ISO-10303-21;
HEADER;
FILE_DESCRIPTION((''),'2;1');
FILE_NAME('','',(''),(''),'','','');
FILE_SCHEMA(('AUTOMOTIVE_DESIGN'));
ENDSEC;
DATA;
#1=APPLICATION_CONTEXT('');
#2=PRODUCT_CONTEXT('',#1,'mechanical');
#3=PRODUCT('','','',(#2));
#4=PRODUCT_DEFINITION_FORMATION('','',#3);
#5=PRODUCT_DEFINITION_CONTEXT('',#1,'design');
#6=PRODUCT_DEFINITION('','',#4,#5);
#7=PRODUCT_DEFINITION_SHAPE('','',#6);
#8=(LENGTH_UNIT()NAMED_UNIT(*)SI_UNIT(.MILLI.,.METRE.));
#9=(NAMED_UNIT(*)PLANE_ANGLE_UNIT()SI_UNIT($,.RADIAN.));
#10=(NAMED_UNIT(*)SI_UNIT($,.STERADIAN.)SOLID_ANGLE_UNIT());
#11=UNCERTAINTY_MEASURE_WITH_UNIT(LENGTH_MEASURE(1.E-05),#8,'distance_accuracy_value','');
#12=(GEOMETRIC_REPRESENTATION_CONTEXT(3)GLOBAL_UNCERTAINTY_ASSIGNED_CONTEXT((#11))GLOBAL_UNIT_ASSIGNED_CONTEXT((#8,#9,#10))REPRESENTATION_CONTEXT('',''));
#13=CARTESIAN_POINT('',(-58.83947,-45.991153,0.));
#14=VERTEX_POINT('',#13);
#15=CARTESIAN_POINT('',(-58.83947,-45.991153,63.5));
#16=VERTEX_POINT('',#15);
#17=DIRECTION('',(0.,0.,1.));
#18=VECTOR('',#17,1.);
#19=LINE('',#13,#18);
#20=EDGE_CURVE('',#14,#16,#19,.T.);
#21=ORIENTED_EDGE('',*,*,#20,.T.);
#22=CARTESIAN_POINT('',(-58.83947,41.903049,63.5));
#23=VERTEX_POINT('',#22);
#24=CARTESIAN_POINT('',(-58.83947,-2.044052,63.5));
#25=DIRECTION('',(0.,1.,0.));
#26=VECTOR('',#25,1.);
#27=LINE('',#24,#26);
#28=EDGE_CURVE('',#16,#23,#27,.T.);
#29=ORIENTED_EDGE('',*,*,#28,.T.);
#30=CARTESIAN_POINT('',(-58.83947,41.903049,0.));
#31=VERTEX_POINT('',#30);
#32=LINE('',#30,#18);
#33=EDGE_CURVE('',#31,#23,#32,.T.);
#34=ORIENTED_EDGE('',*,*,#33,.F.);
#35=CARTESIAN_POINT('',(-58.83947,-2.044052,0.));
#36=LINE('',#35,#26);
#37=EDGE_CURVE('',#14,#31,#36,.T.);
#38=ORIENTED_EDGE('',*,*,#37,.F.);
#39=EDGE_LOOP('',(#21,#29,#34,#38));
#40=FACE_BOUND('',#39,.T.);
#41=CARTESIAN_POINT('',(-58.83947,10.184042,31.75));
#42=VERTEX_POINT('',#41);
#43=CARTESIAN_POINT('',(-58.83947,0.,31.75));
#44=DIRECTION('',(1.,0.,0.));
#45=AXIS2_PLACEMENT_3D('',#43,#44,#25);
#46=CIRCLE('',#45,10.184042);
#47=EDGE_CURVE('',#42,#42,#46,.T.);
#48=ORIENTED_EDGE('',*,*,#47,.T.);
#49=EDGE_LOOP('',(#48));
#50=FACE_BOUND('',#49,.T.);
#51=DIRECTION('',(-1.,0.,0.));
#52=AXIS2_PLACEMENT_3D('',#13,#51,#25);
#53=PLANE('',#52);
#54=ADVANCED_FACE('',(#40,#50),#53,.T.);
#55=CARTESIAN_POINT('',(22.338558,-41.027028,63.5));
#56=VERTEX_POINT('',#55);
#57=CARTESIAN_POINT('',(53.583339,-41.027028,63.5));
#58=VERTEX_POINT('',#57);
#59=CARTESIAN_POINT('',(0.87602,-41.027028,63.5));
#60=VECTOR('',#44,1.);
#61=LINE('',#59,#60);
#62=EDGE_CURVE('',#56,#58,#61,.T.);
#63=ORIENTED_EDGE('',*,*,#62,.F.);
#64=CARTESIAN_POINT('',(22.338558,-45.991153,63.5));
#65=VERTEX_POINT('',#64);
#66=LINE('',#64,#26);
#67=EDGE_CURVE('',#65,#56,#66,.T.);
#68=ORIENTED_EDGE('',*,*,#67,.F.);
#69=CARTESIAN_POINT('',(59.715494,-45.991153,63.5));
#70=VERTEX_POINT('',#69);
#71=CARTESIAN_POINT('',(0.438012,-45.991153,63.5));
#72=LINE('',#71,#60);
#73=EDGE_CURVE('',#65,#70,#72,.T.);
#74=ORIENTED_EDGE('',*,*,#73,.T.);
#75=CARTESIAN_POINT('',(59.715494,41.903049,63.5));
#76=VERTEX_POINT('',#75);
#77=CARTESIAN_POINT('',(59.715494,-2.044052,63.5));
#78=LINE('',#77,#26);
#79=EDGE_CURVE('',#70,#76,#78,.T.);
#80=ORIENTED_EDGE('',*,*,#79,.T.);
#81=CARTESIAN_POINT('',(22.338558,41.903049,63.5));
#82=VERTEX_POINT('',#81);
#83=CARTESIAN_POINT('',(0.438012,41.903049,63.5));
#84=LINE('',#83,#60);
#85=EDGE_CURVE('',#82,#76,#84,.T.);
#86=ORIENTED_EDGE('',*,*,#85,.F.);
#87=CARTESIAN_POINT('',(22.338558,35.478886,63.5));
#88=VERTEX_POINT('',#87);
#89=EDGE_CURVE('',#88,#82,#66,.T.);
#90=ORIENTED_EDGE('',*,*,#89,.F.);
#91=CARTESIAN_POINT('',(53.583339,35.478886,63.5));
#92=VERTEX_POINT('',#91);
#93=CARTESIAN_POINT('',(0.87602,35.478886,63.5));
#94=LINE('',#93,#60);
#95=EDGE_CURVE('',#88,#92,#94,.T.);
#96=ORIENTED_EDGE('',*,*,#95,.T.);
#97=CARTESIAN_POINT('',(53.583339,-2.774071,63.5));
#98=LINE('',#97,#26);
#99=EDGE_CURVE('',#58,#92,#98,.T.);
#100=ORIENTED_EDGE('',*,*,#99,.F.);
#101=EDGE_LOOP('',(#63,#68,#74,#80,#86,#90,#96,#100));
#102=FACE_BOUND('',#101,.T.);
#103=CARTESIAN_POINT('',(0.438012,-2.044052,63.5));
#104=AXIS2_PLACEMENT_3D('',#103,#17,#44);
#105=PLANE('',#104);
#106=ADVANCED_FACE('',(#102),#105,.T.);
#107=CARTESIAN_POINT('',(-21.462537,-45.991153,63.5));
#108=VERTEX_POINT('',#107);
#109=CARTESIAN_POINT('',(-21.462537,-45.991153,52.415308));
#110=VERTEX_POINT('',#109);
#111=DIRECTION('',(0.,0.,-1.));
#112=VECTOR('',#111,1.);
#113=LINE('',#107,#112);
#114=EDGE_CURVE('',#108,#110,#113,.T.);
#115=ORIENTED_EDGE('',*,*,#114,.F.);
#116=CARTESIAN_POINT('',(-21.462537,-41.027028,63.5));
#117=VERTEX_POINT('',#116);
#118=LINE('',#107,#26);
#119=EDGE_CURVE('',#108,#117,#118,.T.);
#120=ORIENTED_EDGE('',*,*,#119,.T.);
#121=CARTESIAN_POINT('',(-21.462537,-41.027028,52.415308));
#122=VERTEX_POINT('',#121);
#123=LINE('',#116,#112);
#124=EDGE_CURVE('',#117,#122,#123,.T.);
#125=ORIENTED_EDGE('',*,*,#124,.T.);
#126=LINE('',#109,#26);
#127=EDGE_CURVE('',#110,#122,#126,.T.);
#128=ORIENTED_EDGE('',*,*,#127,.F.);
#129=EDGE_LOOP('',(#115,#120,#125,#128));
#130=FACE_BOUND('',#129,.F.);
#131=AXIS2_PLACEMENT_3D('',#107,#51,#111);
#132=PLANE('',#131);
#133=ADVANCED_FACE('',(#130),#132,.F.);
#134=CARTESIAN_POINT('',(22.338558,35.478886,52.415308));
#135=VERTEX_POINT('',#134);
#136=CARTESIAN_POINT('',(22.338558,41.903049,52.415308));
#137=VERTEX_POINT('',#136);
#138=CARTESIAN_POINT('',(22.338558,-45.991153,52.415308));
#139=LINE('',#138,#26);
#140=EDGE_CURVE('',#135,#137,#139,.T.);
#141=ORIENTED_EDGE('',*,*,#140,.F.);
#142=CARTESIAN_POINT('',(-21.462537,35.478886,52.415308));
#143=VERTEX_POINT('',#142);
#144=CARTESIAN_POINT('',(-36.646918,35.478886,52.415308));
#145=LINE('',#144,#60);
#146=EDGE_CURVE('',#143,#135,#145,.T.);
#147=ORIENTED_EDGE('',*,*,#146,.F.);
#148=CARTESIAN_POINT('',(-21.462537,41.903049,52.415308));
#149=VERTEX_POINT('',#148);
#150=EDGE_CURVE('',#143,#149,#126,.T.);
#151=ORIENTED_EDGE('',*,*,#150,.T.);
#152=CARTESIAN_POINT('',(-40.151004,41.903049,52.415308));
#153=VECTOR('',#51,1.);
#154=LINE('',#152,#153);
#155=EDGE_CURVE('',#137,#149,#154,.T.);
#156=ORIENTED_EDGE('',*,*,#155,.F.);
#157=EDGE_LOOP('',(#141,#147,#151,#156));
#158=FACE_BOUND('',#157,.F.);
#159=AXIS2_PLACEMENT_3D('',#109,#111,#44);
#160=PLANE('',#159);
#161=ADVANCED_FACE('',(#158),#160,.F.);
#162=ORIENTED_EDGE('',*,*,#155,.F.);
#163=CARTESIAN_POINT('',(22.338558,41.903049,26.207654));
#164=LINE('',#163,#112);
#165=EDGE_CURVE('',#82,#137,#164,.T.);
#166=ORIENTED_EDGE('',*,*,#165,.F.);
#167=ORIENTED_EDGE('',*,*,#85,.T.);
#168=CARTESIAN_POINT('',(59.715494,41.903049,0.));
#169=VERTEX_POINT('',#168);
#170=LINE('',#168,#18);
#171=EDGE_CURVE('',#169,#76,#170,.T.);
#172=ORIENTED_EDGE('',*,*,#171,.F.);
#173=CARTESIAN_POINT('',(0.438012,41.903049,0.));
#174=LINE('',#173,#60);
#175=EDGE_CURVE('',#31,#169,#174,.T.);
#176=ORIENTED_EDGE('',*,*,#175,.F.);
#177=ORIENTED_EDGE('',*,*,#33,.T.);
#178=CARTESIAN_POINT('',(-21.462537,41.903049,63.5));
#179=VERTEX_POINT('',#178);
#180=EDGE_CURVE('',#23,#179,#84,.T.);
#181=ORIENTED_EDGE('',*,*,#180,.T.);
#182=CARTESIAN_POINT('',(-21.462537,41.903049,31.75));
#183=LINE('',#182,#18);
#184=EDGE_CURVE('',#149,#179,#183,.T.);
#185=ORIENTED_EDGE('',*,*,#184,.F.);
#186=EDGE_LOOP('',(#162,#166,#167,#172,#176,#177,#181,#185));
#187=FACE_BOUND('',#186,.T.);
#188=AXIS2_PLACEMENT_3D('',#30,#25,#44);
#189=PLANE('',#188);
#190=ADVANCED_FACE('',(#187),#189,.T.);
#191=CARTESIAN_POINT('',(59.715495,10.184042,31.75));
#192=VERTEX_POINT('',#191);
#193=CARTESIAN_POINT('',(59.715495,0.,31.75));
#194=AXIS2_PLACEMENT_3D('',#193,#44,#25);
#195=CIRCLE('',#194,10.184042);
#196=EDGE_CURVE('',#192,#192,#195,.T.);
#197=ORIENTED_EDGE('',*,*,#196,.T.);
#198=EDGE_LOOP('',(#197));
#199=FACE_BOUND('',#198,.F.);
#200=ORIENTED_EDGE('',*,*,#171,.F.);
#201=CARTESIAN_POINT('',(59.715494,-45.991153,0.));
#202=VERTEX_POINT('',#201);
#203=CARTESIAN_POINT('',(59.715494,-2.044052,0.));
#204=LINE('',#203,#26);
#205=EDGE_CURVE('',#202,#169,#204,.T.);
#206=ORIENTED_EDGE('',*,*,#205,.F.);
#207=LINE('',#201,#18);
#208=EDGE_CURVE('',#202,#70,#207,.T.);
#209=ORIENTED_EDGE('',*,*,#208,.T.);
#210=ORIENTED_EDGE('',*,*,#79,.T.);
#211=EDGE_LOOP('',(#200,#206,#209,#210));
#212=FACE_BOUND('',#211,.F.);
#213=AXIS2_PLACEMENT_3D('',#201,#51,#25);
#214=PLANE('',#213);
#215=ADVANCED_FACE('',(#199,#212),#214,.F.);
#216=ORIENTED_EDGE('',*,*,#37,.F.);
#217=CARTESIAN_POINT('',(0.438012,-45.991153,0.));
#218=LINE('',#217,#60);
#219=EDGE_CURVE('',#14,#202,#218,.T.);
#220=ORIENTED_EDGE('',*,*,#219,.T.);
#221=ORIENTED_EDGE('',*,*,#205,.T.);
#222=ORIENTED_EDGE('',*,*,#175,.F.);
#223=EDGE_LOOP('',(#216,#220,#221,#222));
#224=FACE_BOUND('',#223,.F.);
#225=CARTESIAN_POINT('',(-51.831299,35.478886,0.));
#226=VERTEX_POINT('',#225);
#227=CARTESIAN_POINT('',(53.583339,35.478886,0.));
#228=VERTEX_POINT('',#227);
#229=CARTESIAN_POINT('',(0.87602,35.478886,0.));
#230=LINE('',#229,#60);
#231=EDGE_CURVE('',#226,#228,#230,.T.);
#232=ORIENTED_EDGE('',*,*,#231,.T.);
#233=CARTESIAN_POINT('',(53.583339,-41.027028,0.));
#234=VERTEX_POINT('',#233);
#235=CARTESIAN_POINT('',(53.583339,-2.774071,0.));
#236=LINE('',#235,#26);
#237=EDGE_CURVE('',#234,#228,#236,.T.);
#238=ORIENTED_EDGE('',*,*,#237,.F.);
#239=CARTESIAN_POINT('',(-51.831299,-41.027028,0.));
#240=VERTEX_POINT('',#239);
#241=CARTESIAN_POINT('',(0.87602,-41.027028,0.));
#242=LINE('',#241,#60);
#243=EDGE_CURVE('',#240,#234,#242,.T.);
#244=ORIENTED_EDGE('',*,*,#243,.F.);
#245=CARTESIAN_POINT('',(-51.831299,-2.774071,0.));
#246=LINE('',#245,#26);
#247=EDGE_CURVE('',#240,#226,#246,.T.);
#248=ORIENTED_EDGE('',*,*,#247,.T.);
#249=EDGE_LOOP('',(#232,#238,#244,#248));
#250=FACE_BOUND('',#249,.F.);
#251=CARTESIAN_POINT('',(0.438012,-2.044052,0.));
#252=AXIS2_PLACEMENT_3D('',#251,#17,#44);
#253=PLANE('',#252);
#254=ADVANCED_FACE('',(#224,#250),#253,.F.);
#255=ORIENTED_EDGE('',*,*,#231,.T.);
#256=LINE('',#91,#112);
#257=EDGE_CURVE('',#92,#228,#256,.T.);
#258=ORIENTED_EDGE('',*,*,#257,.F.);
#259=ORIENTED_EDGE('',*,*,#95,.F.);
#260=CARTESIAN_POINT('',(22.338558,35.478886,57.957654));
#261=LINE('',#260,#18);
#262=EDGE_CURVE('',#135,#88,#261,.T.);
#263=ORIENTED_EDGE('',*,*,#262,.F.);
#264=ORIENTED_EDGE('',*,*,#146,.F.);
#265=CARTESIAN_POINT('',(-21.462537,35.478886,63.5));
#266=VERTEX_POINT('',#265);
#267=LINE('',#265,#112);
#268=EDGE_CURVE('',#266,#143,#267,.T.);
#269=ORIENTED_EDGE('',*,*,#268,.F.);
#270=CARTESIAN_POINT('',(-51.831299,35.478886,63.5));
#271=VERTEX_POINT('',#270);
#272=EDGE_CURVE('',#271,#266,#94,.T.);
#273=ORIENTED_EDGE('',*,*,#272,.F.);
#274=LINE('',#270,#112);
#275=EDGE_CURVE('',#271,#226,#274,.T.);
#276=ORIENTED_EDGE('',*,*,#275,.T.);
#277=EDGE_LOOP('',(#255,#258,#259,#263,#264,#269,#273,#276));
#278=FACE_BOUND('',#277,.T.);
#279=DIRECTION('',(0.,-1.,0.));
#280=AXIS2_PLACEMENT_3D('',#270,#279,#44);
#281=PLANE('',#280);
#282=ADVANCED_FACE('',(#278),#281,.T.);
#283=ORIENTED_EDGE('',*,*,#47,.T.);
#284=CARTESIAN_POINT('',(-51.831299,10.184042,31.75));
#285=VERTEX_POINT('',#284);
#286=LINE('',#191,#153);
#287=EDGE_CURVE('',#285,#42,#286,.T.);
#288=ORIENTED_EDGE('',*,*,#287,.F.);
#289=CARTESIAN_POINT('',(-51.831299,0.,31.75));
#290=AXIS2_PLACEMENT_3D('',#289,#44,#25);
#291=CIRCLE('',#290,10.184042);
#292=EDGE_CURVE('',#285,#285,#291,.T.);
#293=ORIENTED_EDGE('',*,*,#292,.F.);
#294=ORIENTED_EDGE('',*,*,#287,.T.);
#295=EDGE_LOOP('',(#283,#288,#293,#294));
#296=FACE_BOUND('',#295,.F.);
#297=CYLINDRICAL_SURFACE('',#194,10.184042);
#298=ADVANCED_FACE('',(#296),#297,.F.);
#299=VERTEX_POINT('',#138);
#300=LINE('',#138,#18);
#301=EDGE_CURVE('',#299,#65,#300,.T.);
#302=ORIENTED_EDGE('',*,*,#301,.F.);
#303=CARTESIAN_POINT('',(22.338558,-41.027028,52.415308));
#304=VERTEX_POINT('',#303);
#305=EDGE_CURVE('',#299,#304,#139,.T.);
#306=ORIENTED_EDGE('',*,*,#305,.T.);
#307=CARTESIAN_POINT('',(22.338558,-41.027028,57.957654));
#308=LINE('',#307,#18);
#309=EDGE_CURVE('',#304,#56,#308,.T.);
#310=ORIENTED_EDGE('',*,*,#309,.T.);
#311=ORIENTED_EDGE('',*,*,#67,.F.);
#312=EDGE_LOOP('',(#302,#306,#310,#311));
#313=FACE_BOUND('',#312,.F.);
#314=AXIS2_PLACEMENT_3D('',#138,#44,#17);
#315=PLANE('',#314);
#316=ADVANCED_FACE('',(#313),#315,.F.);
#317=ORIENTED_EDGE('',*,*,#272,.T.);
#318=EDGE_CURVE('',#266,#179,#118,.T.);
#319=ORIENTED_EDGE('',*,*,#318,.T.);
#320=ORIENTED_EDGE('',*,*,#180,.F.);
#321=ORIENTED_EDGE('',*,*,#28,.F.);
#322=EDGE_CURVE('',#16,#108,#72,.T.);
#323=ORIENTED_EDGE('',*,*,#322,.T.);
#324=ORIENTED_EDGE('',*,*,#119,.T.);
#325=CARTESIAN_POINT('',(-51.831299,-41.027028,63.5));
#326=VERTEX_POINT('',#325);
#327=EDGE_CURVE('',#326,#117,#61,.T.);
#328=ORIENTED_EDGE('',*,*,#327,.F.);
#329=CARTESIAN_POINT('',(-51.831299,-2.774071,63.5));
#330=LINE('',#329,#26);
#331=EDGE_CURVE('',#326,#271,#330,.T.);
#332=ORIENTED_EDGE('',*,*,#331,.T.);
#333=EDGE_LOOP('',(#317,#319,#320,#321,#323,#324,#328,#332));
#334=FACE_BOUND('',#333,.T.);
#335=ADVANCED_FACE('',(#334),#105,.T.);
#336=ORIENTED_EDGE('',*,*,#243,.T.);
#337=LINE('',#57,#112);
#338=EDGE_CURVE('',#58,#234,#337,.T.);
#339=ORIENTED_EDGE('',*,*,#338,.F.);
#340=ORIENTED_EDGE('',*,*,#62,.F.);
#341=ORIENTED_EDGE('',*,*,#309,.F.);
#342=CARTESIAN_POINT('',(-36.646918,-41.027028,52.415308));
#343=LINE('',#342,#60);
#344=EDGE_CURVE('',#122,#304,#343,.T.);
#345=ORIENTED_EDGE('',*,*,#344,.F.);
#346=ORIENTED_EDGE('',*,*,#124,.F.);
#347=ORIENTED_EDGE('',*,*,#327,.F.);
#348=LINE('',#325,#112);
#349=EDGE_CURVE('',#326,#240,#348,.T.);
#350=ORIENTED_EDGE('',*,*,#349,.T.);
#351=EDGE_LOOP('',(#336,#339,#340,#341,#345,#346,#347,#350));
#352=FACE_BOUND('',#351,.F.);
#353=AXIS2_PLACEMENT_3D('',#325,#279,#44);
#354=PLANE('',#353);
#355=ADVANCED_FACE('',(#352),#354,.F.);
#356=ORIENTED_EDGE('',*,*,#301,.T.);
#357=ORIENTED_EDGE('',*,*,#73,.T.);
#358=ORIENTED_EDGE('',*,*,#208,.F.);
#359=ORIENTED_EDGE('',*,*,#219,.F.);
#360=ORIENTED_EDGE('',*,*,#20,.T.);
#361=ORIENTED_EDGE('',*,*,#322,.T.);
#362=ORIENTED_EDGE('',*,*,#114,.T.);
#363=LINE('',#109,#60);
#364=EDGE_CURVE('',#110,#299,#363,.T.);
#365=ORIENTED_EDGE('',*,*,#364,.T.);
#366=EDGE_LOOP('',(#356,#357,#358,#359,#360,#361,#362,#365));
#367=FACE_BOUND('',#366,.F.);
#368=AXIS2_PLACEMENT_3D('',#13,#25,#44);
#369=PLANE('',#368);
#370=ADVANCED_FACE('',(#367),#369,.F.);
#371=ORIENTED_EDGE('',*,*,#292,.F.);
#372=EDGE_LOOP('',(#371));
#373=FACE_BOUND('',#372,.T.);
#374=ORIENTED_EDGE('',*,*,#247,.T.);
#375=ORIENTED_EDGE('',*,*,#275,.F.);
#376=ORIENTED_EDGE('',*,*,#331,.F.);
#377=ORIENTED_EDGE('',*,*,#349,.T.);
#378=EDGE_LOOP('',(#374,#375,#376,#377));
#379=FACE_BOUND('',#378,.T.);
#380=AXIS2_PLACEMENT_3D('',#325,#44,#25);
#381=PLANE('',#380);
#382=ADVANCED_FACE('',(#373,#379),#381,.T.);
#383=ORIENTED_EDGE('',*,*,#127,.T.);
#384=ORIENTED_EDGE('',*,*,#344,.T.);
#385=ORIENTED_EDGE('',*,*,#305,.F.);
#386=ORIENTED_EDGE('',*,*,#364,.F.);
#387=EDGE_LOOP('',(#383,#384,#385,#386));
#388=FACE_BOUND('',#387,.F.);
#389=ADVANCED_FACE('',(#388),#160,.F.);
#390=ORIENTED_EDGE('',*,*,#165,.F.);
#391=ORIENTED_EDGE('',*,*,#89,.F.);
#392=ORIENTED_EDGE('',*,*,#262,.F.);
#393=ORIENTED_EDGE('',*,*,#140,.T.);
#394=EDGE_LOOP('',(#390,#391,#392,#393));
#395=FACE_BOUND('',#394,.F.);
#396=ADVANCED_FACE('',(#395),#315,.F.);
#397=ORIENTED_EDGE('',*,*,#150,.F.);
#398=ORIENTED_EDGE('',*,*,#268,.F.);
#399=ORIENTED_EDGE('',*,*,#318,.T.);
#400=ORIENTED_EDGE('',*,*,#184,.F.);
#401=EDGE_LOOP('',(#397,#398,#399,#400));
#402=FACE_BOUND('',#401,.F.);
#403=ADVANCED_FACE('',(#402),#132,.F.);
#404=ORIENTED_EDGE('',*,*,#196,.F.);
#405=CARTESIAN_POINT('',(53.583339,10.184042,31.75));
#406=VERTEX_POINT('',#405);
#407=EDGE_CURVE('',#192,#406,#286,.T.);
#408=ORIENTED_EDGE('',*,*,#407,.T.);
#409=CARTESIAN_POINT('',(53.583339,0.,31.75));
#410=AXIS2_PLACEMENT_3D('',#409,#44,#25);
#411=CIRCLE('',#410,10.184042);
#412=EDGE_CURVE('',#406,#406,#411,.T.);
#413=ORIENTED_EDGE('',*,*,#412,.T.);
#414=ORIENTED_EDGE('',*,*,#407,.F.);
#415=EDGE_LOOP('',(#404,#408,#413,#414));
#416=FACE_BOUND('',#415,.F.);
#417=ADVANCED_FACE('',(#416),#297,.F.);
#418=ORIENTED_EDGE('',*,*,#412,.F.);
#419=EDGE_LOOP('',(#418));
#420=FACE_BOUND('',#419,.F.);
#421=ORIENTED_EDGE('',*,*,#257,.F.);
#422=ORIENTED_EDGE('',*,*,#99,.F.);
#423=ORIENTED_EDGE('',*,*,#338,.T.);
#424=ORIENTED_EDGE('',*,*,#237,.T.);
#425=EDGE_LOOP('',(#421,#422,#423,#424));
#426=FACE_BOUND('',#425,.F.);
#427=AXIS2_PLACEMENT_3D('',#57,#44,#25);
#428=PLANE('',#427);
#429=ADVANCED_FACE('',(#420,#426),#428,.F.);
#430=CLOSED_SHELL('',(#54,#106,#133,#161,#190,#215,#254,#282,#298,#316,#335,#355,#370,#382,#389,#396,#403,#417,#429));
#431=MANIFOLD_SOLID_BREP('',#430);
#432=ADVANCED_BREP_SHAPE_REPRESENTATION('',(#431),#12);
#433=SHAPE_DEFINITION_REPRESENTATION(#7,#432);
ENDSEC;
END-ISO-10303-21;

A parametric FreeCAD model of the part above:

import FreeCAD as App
import Part
import Sketcher
from FreeCAD import Vector
Q = App.Units.Quantity

doc = App.newDocument("Part")
body = doc.addObject("PartDesign::Body", "Body")

sketch1 = body.newObject("Sketcher::SketchObject", "Sketch")
sketch1.AttachmentSupport = (doc.getObject("XY_Plane"), [""])
sketch1.MapMode = "FlatFace"
sketch1.addGeometry([
    Part.LineSegment(Vector(-59, 42, 0), Vector(-59, -46, 0)),
    Part.LineSegment(Vector(-59, -46, 0), Vector(60, -46, 0)),
    Part.LineSegment(Vector(60, -46, 0), Vector(60, 42, 0)),
    Part.LineSegment(Vector(60, 42, 0), Vector(-59, 42, 0)),
], False)
sketch1.addConstraint([
    Sketcher.Constraint("Coincident", 0, 2, 1, 1),
    Sketcher.Constraint("Coincident", 1, 2, 2, 1),
    Sketcher.Constraint("Coincident", 2, 2, 3, 1),
    Sketcher.Constraint("Coincident", 3, 2, 0, 1),
    Sketcher.Constraint("Vertical", 0),
    Sketcher.Constraint("Horizontal", 1),
    Sketcher.Constraint("Vertical", 2),
    Sketcher.Constraint("Horizontal", 3),
    Sketcher.Constraint("DistanceX", 1, 1, 1, 2, Q("118.554965 mm")),
    Sketcher.Constraint("DistanceY", 0, 2, 0, 1, Q("87.894202 mm")),
    Sketcher.Constraint("DistanceX", 0, 2, -1, 1, Q("58.83947 mm")),
    Sketcher.Constraint("DistanceY", -1, 1, 2, 2, Q("41.903049 mm")),
])
pad1 = body.newObject("PartDesign::Pad", "Pad")
pad1.Profile = sketch1
pad1.Length = Q("2.5 in")

sketch2 = body.newObject("Sketcher::SketchObject", "Sketch001")
sketch2.AttachmentSupport = (doc.getObject("XY_Plane"), [""])
sketch2.MapMode = "FlatFace"
sketch2.AttachmentOffset = App.Placement(Vector(0, 0, 2.5 * 25.4), App.Rotation())
sketch2.addGeometry([
    Part.LineSegment(Vector(-52, 35, 0), Vector(-52, -41, 0)),
    Part.LineSegment(Vector(-52, -41, 0), Vector(54, -41, 0)),
    Part.LineSegment(Vector(54, -41, 0), Vector(54, 35, 0)),
    Part.LineSegment(Vector(54, 35, 0), Vector(-52, 35, 0)),
], False)
sketch2.addConstraint([
    Sketcher.Constraint("Coincident", 0, 2, 1, 1),
    Sketcher.Constraint("Coincident", 1, 2, 2, 1),
    Sketcher.Constraint("Coincident", 2, 2, 3, 1),
    Sketcher.Constraint("Coincident", 3, 2, 0, 1),
    Sketcher.Constraint("Vertical", 0),
    Sketcher.Constraint("Horizontal", 1),
    Sketcher.Constraint("Vertical", 2),
    Sketcher.Constraint("Horizontal", 3),
    Sketcher.Constraint("DistanceX", 0, 2, -1, 1, Q("51.831299 mm")),
    Sketcher.Constraint("DistanceX", 1, 1, 1, 2, Q("105.414637 mm")),
    Sketcher.Constraint("DistanceY", 0, 2, 0, 1, Q("76.505914 mm")),
    Sketcher.Constraint("DistanceY", 0, 2, -1, 1, Q("41.027028 mm")),
])
pocket1 = body.newObject("PartDesign::Pocket", "Pocket")
pocket1.Profile = sketch2
pocket1.Length = Q("2.5 in")

sketch3 = body.newObject("Sketcher::SketchObject", "Sketch002")
sketch3.AttachmentSupport = (doc.getObject("XZ_Plane"), [""])
sketch3.MapMode = "FlatFace"
sketch3.AttachmentOffset = App.Placement(Vector(0, 0, 45.991153), App.Rotation())
sketch3.addGeometry([
    Part.LineSegment(Vector(22, 64, 0), Vector(-21, 64, 0)),
    Part.LineSegment(Vector(-21, 64, 0), Vector(-21, 52, 0)),
    Part.LineSegment(Vector(-21, 52, 0), Vector(22, 52, 0)),
    Part.LineSegment(Vector(22, 52, 0), Vector(22, 64, 0)),
], False)
sketch3.addConstraint([
    Sketcher.Constraint("Coincident", 0, 2, 1, 1),
    Sketcher.Constraint("Coincident", 1, 2, 2, 1),
    Sketcher.Constraint("Coincident", 2, 2, 3, 1),
    Sketcher.Constraint("Coincident", 3, 2, 0, 1),
    Sketcher.Constraint("Horizontal", 0),
    Sketcher.Constraint("Vertical", 1),
    Sketcher.Constraint("Horizontal", 2),
    Sketcher.Constraint("Vertical", 3),
    Sketcher.Constraint("DistanceY", -1, 1, 0, 2, Q("2.5 in")),
    Sketcher.Constraint("DistanceY", 1, 2, 1, 1, Q("11.084692 mm")),
    Sketcher.Constraint("DistanceX", 0, 2, 0, 1, Q("43.801095 mm")),
    Sketcher.Constraint("DistanceX", 0, 2, -1, 1, Q("21.462537 mm")),
])
pocket2 = body.newObject("PartDesign::Pocket", "Pocket001")
pocket2.Profile = sketch3
pocket2.Length = Q("5 in")

sketch4 = body.newObject("Sketcher::SketchObject", "Sketch003")
sketch4.AttachmentSupport = (doc.getObject("YZ_Plane"), [""])
sketch4.MapMode = "FlatFace"
sketch4.AttachmentOffset = App.Placement(Vector(0, 0, 59.715495), App.Rotation())
sketch4.addGeometry(Part.Circle(Vector(0, 32, 0), Vector(0, 0, 1), 10), False)
sketch4.addConstraint([
    Sketcher.Constraint("PointOnObject", 0, 3, -2),
    Sketcher.Constraint("DistanceY", -1, 1, 0, 3, Q("1.25 in")),
    Sketcher.Constraint("Diameter", 0, Q("20.368084 mm")),
])
pocket3 = body.newObject("PartDesign::Pocket", "Pocket002")
pocket3.Profile = sketch4
pocket3.Length = Q("10 in")

doc.recompute()
